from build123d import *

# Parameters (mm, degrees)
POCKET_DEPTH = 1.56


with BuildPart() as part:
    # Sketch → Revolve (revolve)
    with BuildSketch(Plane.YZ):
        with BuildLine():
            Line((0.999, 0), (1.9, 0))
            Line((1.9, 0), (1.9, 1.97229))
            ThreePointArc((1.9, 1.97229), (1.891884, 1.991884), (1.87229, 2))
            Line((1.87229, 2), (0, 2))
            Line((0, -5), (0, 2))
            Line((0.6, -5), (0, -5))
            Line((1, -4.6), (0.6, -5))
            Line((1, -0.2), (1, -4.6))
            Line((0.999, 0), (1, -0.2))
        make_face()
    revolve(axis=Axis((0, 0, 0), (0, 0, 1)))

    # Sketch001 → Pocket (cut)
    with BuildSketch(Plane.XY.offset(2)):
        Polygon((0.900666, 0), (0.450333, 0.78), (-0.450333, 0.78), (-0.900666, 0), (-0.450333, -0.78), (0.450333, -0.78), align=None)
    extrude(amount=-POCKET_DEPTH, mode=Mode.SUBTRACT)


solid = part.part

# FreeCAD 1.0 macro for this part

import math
import FreeCAD as App
import Part
import Sketcher
from FreeCAD import Vector
Q = App.Units.Quantity


def add_polygon(sketch, points):
    """Adds a closed chain of lines whose ends are joined by coincident constraints."""
    first, n = sketch.GeometryCount, len(points)
    for a, b in zip(points, points[1:] + points[:1]):
        sketch.addGeometry(Part.LineSegment(App.Vector(*a, 0), App.Vector(*b, 0)), False)
    for i in range(n):
        sketch.addConstraint(Sketcher.Constraint("Coincident", first + i, 2, first + (i + 1) % n, 1))

doc = App.newDocument("Part")
body = doc.addObject("PartDesign::Body", "Body")

# Sketch on YZ plane
sketch1 = doc.addObject("Sketcher::SketchObject", "Sketch")
body.addObject(sketch1)
sketch1.AttachmentSupport = (doc.YZ_Plane, [""])
sketch1.MapMode = "FlatFace"
sketch1.addGeometry([
    Part.LineSegment(Vector(0.999, 0, 0), Vector(1.9, 0, 0)),  # 0
    Part.LineSegment(Vector(1.9, 0, 0), Vector(1.9, 1.972, 0)),  # 1
    Part.ArcOfCircle(Part.Circle(Vector(1.872, 1.972, 0), Vector(0, 0, 1), 0.028), math.radians(0), math.radians(90)),  # 2
    Part.LineSegment(Vector(1.872, 2, 0), Vector(0, 2, 0)),  # 3
    Part.LineSegment(Vector(0, 2, 0), Vector(0, -5, 0)),  # 4
    Part.LineSegment(Vector(0, -5, 0), Vector(0.6, -5, 0)),  # 5
    Part.LineSegment(Vector(0.6, -5, 0), Vector(1, -4.6, 0)),  # 6
    Part.LineSegment(Vector(1, -4.6, 0), Vector(1, -0.2, 0)),  # 7
    Part.LineSegment(Vector(1, -0.2, 0), Vector(0.999, 0, 0)),  # 8
], False)
sketch1.addConstraint([
    Sketcher.Constraint("Coincident", 0, 2, 1, 1),
    Sketcher.Constraint("Coincident", 1, 2, 2, 1),
    Sketcher.Constraint("Coincident", 2, 2, 3, 1),
    Sketcher.Constraint("Coincident", 3, 2, 4, 1),
    Sketcher.Constraint("Coincident", 4, 2, 5, 1),
    Sketcher.Constraint("Coincident", 5, 2, 6, 1),
    Sketcher.Constraint("Coincident", 6, 2, 7, 1),
    Sketcher.Constraint("Coincident", 7, 2, 8, 1),
    Sketcher.Constraint("Coincident", 8, 2, 0, 1),
    Sketcher.Constraint("Horizontal", 0),
    Sketcher.Constraint("Vertical", 1),
    Sketcher.Constraint("Horizontal", 3),
    Sketcher.Constraint("Vertical", 4),
    Sketcher.Constraint("Horizontal", 5),
    Sketcher.Constraint("Vertical", 7),
    Sketcher.Constraint("PointOnObject", 0, 2, -1),
    Sketcher.Constraint("PointOnObject", 3, 2, -2),
    Sketcher.Constraint("Horizontal", 2, 3, 1, 2),
    Sketcher.Constraint("DistanceY", 4, 2, 4, 1, Q("7 mm")),
    Sketcher.Constraint("Angle", 6, Q("45 deg")),
    Sketcher.Constraint("DistanceX", 5, 1, 5, 2, Q("0.6 mm")),
    Sketcher.Constraint("DistanceY", 7, 1, 7, 2, Q("4.4 mm")),
    Sketcher.Constraint("DistanceY", -1, 1, 2, 2, Q("2 mm")),
    Sketcher.Constraint("DistanceX", -1, 1, 6, 2, Q("1 mm")),
    Sketcher.Constraint("DistanceX", -1, 1, 0, 2, Q("1.9 mm")),
    Sketcher.Constraint("DistanceX", 0, 1, 0, 2, Q("0.901 mm")),
    Sketcher.Constraint("Radius", 2, Q("0.02771 mm")),
    Sketcher.Constraint("DistanceX", 3, 2, 3, 1, Q("1.87229 mm")),
])
revolution = doc.addObject("PartDesign::Revolution", "Revolution")
body.addObject(revolution)
revolution.Profile = sketch1
revolution.ReferenceAxis = (sketch1, ["V_Axis"])
revolution.Angle = 360

# Sketch on XY plane
sketch2 = doc.addObject("Sketcher::SketchObject", "Sketch001")
body.addObject(sketch2)
sketch2.AttachmentSupport = (doc.XY_Plane, [""])
sketch2.MapMode = "FlatFace"
sketch2.AttachmentOffset = App.Placement(Vector(0, 0, 2), App.Rotation())
add_polygon(sketch2, [(0.9, 0), (0.5, 0.8), (-0.5, 0.8), (-0.9, 0), (-0.5, -0.8), (0.5, -0.8)])  # lines 0-5
sketch2.addConstraint([
    Sketcher.Constraint("Horizontal", 1),
    Sketcher.Constraint("Horizontal", 4),
    Sketcher.Constraint("Symmetric", 0, 2, 3, 2, -1, 1),
    Sketcher.Constraint("Symmetric", 2, 2, 5, 2, -1, 1),
    Sketcher.Constraint("PointOnObject", 2, 2, -1),
    Sketcher.Constraint("Parallel", 2, 5),
    Sketcher.Constraint("Vertical", 1, 2, 3, 2),
    Sketcher.Constraint("Angle", 0, Q("119.999988 deg")),
    Sketcher.Constraint("DistanceY", -1, 1, 0, 2, Q("0.78 mm")),
    Sketcher.Constraint("DistanceX", 2, 2, 0, 2, Q("1.350999 mm")),
])
pocket1 = doc.addObject("PartDesign::Pocket", "Pocket")
body.addObject(pocket1)
pocket1.Profile = sketch2
pocket1.Length = 1.56

doc.recompute()
